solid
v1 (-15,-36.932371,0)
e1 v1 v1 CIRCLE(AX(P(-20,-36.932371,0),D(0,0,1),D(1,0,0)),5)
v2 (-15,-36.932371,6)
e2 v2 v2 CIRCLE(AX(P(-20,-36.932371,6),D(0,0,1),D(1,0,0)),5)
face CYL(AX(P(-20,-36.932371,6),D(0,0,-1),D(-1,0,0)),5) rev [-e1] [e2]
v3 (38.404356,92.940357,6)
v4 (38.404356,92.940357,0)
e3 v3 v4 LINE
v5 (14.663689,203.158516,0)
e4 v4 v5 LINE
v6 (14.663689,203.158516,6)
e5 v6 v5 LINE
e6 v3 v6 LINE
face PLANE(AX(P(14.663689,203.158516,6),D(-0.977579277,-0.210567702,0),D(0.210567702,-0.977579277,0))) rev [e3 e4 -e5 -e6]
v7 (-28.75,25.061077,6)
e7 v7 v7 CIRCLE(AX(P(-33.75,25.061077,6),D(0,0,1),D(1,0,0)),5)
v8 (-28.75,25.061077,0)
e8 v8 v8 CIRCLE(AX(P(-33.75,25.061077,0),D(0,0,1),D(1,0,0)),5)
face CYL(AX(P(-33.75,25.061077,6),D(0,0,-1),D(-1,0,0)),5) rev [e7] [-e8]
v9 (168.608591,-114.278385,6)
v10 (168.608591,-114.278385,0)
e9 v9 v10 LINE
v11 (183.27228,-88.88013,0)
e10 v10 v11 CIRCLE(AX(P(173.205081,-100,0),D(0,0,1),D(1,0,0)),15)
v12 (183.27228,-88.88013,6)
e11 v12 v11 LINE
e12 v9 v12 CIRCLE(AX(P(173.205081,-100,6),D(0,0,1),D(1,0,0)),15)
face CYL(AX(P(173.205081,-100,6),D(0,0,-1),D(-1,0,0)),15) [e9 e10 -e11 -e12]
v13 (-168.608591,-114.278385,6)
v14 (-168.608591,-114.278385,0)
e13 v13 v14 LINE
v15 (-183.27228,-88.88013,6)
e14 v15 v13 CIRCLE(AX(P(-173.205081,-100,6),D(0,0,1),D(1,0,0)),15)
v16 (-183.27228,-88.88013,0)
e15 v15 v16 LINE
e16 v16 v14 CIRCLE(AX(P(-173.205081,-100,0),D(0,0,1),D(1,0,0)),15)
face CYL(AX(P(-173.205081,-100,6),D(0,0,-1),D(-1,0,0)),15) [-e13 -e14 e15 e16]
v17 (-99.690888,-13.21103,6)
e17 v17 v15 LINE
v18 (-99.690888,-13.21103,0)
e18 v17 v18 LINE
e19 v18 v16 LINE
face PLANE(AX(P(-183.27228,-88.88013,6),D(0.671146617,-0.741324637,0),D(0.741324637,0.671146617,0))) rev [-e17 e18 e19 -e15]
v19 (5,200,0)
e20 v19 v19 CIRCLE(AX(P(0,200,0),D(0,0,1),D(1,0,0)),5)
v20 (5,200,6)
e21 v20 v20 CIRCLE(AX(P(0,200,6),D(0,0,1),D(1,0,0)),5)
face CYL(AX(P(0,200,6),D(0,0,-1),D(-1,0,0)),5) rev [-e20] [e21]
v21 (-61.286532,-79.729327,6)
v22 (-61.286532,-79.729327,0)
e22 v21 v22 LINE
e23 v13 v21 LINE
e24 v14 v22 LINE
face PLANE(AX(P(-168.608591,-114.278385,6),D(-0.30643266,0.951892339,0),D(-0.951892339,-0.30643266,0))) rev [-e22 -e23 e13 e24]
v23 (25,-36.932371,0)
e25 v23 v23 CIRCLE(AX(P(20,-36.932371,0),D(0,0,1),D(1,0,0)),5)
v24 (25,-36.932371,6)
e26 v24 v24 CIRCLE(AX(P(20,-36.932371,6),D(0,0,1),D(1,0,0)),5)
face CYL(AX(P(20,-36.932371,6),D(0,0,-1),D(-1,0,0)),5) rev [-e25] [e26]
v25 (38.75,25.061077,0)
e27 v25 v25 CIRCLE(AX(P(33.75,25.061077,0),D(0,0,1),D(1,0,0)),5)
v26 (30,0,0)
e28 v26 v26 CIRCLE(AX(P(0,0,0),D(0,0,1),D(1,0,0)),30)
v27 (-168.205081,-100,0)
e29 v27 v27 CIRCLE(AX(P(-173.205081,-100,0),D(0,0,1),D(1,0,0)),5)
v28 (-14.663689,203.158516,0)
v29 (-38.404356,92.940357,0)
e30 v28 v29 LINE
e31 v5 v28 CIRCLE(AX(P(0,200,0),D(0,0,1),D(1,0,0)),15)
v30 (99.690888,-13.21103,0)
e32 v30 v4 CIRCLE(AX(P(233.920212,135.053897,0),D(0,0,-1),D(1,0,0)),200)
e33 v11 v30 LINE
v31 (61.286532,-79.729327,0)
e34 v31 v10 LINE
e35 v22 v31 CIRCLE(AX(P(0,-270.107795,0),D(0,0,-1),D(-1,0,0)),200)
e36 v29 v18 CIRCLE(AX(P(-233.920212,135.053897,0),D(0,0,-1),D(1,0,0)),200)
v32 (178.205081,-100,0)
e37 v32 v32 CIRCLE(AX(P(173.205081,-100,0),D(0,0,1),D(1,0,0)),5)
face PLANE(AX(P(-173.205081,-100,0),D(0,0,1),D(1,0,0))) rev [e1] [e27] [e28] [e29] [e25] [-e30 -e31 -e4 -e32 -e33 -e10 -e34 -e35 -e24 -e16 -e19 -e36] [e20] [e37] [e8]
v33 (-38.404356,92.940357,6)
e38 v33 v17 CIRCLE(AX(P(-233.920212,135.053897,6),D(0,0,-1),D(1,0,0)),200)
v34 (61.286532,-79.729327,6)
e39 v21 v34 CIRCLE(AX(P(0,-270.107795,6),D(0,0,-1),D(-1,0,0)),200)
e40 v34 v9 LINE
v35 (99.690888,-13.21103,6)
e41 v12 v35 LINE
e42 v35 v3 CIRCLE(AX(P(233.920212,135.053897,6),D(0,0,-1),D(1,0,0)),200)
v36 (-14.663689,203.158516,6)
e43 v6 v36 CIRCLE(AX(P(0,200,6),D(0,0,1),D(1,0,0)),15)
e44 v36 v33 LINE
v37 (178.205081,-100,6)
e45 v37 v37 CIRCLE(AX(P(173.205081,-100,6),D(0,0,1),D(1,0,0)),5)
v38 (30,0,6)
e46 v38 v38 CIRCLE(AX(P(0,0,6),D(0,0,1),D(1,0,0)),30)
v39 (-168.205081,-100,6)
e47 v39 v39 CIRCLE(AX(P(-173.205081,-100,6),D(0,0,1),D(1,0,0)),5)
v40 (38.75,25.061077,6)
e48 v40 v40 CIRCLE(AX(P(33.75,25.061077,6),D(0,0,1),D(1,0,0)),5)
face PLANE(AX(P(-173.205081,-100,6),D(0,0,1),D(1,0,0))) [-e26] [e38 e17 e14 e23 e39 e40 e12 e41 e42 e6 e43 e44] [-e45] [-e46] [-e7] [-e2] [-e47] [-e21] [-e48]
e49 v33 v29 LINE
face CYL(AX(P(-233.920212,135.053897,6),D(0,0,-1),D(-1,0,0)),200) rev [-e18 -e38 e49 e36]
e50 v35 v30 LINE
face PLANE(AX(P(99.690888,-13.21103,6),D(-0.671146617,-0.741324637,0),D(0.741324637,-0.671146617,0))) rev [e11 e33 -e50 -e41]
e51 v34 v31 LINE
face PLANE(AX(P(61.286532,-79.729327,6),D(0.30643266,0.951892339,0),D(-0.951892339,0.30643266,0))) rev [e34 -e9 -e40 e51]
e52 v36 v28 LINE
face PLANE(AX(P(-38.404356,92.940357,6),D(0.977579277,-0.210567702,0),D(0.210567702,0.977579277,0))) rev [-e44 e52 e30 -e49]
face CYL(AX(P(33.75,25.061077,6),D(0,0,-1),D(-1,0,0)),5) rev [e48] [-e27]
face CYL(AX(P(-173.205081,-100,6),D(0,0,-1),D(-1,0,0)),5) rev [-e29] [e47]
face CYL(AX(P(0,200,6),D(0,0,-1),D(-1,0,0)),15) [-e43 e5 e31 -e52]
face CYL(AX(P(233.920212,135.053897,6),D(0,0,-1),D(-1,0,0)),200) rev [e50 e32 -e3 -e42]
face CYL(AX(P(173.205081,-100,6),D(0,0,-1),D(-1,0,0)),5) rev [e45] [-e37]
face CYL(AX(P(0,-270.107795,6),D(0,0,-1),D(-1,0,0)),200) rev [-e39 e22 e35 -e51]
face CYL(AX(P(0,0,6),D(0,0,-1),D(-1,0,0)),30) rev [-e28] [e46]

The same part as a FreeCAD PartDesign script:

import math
import FreeCAD as App
import Part
import Sketcher

V = App.Vector

doc = App.newDocument("Part")
body = doc.addObject("PartDesign::Body", "Body")

sketch1 = body.newObject("Sketcher::SketchObject", "Sketch")
sketch1.AttachmentSupport = (doc.getObject("XY_Plane"), [""])
sketch1.MapMode = "FlatFace"
sketch1.addGeometry(Part.LineSegment(V(-99.690888, -13.21103, 0), V(-183.27228, -88.88013, 0)), False)
sketch1.addGeometry(Part.ArcOfCircle(Part.Circle(V(-173.205081, -100, 0), V(0, 0, 1), 15), math.radians(132.155623), math.radians(287.844377)), False)
sketch1.addGeometry(Part.LineSegment(V(-168.608591, -114.278385, 0), V(-61.286532, -79.729327, 0)), False)
sketch1.addGeometry(Part.ArcOfCircle(Part.Circle(V(0, -270.107795, 0), V(0, 0, 1), 200), math.radians(72.155623), math.radians(107.844377)), False)
sketch1.addGeometry(Part.LineSegment(V(61.286532, -79.729327, 0), V(168.608591, -114.278385, 0)), False)
sketch1.addGeometry(Part.ArcOfCircle(Part.Circle(V(173.205081, -100, 0), V(0, 0, 1), 15), math.radians(-107.844377), math.radians(47.844377)), False)
sketch1.addGeometry(Part.LineSegment(V(183.27228, -88.88013, 0), V(99.690888, -13.21103, 0)), False)
sketch1.addGeometry(Part.ArcOfCircle(Part.Circle(V(233.920212, 135.053897, 0), V(0, 0, 1), 200), math.radians(-167.844377), math.radians(-132.155623)), False)
sketch1.addGeometry(Part.LineSegment(V(38.404356, 92.940357, 0), V(14.663689, 203.158516, 0)), False)
sketch1.addGeometry(Part.ArcOfCircle(Part.Circle(V(0, 200, 0), V(0, 0, 1), 15), math.radians(12.155623), math.radians(167.844377)), False)
sketch1.addGeometry(Part.LineSegment(V(-14.663689, 203.158516, 0), V(-38.404356, 92.940357, 0)), False)
sketch1.addGeometry(Part.ArcOfCircle(Part.Circle(V(-233.920212, 135.053897, 0), V(0, 0, 1), 200), math.radians(-47.844377), math.radians(-12.155623)), False)
sketch1.addGeometry(Part.Circle(V(173.205081, -100, 0), V(0, 0, 1), 5), False)
sketch1.addGeometry(Part.Circle(V(20, -36.932371, 0), V(0, 0, 1), 5), False)
sketch1.addGeometry(Part.Circle(V(33.75, 25.061077, 0), V(0, 0, 1), 5), False)
sketch1.addGeometry(Part.Circle(V(-20, -36.932371, 0), V(0, 0, 1), 5), False)
sketch1.addGeometry(Part.Circle(V(-173.205081, -100, 0), V(0, 0, 1), 5), False)
sketch1.addGeometry(Part.Circle(V(0, 0, 0), V(0, 0, 1), 30), False)
sketch1.addGeometry(Part.Circle(V(-33.75, 25.061077, 0), V(0, 0, 1), 5), False)
sketch1.addGeometry(Part.Circle(V(0, 200, 0), V(0, 0, 1), 5), False)
sketch1.addConstraint(Sketcher.Constraint("Tangent", 0, 2, 1, 1))
sketch1.addConstraint(Sketcher.Constraint("Tangent", 1, 2, 2, 1))
sketch1.addConstraint(Sketcher.Constraint("Tangent", 2, 2, 3, 2))
sketch1.addConstraint(Sketcher.Constraint("Tangent", 3, 1, 4, 1))
sketch1.addConstraint(Sketcher.Constraint("Tangent", 4, 2, 5, 1))
sketch1.addConstraint(Sketcher.Constraint("Tangent", 5, 2, 6, 1))
sketch1.addConstraint(Sketcher.Constraint("Tangent", 6, 2, 7, 2))
sketch1.addConstraint(Sketcher.Constraint("Tangent", 7, 1, 8, 1))
sketch1.addConstraint(Sketcher.Constraint("Tangent", 8, 2, 9, 1))
sketch1.addConstraint(Sketcher.Constraint("Tangent", 9, 2, 10, 1))
sketch1.addConstraint(Sketcher.Constraint("Tangent", 10, 2, 11, 2))
sketch1.addConstraint(Sketcher.Constraint("Tangent", 11, 1, 0, 1))
sketch1.addConstraint(Sketcher.Constraint("Coincident", 17, 3, -1, 1))
sketch1.addConstraint(Sketcher.Constraint("Coincident", 12, 3, 5, 3))
sketch1.addConstraint(Sketcher.Constraint("Coincident", 16, 3, 1, 3))
sketch1.addConstraint(Sketcher.Constraint("Coincident", 19, 3, 9, 3))
sketch1.addConstraint(Sketcher.Constraint("Equal", 1, 5))
sketch1.addConstraint(Sketcher.Constraint("Equal", 3, 7))
sketch1.addConstraint(Sketcher.Constraint("Equal", 5, 9))
sketch1.addConstraint(Sketcher.Constraint("Equal", 7, 11))
sketch1.addConstraint(Sketcher.Constraint("Equal", 12, 13))
sketch1.addConstraint(Sketcher.Constraint("Equal", 13, 14))
sketch1.addConstraint(Sketcher.Constraint("Equal", 14, 15))
sketch1.addConstraint(Sketcher.Constraint("Equal", 15, 16))
sketch1.addConstraint(Sketcher.Constraint("Equal", 16, 18))
sketch1.addConstraint(Sketcher.Constraint("Equal", 18, 19))
sketch1.addConstraint(Sketcher.Constraint("Symmetric", 1, 3, 5, 3, -2))
sketch1.addConstraint(Sketcher.Constraint("Symmetric", 7, 3, 11, 3, -2))
sketch1.addConstraint(Sketcher.Constraint("Symmetric", 13, 3, 15, 3, -2))
sketch1.addConstraint(Sketcher.Constraint("Symmetric", 14, 3, 18, 3, -2))
sketch1.addConstraint(Sketcher.Constraint("PointOnObject", 3, 3, -2))
sketch1.addConstraint(Sketcher.Constraint("PointOnObject", 9, 3, -2))
sketch1.addConstraint(Sketcher.Constraint("Equal", 0, 2))
sketch1.addConstraint(Sketcher.Constraint("Equal", 6, 8))
sketch1.addConstraint(Sketcher.Constraint("Diameter", 12, 10.0))
sketch1.addConstraint(Sketcher.Constraint("Diameter", 17, 60.0))
sketch1.addConstraint(Sketcher.Constraint("Radius", 1, 15.0))
sketch1.addConstraint(Sketcher.Constraint("Radius", 3, 200.0))
sketch1.addConstraint(Sketcher.Constraint("DistanceY", 1, 3, -1, 1, 100.0))
sketch1.addConstraint(Sketcher.Constraint("DistanceY", -1, 1, 9, 3, 200.0))
sketch1.addConstraint(Sketcher.Constraint("DistanceX", -1, 1, 13, 3, 20.0))
sketch1.addConstraint(Sketcher.Constraint("DistanceX", 18, 3, 14, 3, 67.5))
sketch1.addConstraint(Sketcher.Constraint("DistanceX", 0, 2, 1, 3, 10.067199))
sketch1.addConstraint(Sketcher.Constraint("DistanceY", 5, 2, 6, 2, 75.6691))
sketch1.addConstraint(Sketcher.Constraint("DistanceY", 13, 3, -1, 1, 36.932371))
sketch1.addConstraint(Sketcher.Constraint("DistanceY", 14, 3, 7, 3, 109.992821))
pad1 = body.newObject("PartDesign::Pad", "Pad")
pad1.Profile = sketch1
pad1.Length = 6

doc.recompute()
